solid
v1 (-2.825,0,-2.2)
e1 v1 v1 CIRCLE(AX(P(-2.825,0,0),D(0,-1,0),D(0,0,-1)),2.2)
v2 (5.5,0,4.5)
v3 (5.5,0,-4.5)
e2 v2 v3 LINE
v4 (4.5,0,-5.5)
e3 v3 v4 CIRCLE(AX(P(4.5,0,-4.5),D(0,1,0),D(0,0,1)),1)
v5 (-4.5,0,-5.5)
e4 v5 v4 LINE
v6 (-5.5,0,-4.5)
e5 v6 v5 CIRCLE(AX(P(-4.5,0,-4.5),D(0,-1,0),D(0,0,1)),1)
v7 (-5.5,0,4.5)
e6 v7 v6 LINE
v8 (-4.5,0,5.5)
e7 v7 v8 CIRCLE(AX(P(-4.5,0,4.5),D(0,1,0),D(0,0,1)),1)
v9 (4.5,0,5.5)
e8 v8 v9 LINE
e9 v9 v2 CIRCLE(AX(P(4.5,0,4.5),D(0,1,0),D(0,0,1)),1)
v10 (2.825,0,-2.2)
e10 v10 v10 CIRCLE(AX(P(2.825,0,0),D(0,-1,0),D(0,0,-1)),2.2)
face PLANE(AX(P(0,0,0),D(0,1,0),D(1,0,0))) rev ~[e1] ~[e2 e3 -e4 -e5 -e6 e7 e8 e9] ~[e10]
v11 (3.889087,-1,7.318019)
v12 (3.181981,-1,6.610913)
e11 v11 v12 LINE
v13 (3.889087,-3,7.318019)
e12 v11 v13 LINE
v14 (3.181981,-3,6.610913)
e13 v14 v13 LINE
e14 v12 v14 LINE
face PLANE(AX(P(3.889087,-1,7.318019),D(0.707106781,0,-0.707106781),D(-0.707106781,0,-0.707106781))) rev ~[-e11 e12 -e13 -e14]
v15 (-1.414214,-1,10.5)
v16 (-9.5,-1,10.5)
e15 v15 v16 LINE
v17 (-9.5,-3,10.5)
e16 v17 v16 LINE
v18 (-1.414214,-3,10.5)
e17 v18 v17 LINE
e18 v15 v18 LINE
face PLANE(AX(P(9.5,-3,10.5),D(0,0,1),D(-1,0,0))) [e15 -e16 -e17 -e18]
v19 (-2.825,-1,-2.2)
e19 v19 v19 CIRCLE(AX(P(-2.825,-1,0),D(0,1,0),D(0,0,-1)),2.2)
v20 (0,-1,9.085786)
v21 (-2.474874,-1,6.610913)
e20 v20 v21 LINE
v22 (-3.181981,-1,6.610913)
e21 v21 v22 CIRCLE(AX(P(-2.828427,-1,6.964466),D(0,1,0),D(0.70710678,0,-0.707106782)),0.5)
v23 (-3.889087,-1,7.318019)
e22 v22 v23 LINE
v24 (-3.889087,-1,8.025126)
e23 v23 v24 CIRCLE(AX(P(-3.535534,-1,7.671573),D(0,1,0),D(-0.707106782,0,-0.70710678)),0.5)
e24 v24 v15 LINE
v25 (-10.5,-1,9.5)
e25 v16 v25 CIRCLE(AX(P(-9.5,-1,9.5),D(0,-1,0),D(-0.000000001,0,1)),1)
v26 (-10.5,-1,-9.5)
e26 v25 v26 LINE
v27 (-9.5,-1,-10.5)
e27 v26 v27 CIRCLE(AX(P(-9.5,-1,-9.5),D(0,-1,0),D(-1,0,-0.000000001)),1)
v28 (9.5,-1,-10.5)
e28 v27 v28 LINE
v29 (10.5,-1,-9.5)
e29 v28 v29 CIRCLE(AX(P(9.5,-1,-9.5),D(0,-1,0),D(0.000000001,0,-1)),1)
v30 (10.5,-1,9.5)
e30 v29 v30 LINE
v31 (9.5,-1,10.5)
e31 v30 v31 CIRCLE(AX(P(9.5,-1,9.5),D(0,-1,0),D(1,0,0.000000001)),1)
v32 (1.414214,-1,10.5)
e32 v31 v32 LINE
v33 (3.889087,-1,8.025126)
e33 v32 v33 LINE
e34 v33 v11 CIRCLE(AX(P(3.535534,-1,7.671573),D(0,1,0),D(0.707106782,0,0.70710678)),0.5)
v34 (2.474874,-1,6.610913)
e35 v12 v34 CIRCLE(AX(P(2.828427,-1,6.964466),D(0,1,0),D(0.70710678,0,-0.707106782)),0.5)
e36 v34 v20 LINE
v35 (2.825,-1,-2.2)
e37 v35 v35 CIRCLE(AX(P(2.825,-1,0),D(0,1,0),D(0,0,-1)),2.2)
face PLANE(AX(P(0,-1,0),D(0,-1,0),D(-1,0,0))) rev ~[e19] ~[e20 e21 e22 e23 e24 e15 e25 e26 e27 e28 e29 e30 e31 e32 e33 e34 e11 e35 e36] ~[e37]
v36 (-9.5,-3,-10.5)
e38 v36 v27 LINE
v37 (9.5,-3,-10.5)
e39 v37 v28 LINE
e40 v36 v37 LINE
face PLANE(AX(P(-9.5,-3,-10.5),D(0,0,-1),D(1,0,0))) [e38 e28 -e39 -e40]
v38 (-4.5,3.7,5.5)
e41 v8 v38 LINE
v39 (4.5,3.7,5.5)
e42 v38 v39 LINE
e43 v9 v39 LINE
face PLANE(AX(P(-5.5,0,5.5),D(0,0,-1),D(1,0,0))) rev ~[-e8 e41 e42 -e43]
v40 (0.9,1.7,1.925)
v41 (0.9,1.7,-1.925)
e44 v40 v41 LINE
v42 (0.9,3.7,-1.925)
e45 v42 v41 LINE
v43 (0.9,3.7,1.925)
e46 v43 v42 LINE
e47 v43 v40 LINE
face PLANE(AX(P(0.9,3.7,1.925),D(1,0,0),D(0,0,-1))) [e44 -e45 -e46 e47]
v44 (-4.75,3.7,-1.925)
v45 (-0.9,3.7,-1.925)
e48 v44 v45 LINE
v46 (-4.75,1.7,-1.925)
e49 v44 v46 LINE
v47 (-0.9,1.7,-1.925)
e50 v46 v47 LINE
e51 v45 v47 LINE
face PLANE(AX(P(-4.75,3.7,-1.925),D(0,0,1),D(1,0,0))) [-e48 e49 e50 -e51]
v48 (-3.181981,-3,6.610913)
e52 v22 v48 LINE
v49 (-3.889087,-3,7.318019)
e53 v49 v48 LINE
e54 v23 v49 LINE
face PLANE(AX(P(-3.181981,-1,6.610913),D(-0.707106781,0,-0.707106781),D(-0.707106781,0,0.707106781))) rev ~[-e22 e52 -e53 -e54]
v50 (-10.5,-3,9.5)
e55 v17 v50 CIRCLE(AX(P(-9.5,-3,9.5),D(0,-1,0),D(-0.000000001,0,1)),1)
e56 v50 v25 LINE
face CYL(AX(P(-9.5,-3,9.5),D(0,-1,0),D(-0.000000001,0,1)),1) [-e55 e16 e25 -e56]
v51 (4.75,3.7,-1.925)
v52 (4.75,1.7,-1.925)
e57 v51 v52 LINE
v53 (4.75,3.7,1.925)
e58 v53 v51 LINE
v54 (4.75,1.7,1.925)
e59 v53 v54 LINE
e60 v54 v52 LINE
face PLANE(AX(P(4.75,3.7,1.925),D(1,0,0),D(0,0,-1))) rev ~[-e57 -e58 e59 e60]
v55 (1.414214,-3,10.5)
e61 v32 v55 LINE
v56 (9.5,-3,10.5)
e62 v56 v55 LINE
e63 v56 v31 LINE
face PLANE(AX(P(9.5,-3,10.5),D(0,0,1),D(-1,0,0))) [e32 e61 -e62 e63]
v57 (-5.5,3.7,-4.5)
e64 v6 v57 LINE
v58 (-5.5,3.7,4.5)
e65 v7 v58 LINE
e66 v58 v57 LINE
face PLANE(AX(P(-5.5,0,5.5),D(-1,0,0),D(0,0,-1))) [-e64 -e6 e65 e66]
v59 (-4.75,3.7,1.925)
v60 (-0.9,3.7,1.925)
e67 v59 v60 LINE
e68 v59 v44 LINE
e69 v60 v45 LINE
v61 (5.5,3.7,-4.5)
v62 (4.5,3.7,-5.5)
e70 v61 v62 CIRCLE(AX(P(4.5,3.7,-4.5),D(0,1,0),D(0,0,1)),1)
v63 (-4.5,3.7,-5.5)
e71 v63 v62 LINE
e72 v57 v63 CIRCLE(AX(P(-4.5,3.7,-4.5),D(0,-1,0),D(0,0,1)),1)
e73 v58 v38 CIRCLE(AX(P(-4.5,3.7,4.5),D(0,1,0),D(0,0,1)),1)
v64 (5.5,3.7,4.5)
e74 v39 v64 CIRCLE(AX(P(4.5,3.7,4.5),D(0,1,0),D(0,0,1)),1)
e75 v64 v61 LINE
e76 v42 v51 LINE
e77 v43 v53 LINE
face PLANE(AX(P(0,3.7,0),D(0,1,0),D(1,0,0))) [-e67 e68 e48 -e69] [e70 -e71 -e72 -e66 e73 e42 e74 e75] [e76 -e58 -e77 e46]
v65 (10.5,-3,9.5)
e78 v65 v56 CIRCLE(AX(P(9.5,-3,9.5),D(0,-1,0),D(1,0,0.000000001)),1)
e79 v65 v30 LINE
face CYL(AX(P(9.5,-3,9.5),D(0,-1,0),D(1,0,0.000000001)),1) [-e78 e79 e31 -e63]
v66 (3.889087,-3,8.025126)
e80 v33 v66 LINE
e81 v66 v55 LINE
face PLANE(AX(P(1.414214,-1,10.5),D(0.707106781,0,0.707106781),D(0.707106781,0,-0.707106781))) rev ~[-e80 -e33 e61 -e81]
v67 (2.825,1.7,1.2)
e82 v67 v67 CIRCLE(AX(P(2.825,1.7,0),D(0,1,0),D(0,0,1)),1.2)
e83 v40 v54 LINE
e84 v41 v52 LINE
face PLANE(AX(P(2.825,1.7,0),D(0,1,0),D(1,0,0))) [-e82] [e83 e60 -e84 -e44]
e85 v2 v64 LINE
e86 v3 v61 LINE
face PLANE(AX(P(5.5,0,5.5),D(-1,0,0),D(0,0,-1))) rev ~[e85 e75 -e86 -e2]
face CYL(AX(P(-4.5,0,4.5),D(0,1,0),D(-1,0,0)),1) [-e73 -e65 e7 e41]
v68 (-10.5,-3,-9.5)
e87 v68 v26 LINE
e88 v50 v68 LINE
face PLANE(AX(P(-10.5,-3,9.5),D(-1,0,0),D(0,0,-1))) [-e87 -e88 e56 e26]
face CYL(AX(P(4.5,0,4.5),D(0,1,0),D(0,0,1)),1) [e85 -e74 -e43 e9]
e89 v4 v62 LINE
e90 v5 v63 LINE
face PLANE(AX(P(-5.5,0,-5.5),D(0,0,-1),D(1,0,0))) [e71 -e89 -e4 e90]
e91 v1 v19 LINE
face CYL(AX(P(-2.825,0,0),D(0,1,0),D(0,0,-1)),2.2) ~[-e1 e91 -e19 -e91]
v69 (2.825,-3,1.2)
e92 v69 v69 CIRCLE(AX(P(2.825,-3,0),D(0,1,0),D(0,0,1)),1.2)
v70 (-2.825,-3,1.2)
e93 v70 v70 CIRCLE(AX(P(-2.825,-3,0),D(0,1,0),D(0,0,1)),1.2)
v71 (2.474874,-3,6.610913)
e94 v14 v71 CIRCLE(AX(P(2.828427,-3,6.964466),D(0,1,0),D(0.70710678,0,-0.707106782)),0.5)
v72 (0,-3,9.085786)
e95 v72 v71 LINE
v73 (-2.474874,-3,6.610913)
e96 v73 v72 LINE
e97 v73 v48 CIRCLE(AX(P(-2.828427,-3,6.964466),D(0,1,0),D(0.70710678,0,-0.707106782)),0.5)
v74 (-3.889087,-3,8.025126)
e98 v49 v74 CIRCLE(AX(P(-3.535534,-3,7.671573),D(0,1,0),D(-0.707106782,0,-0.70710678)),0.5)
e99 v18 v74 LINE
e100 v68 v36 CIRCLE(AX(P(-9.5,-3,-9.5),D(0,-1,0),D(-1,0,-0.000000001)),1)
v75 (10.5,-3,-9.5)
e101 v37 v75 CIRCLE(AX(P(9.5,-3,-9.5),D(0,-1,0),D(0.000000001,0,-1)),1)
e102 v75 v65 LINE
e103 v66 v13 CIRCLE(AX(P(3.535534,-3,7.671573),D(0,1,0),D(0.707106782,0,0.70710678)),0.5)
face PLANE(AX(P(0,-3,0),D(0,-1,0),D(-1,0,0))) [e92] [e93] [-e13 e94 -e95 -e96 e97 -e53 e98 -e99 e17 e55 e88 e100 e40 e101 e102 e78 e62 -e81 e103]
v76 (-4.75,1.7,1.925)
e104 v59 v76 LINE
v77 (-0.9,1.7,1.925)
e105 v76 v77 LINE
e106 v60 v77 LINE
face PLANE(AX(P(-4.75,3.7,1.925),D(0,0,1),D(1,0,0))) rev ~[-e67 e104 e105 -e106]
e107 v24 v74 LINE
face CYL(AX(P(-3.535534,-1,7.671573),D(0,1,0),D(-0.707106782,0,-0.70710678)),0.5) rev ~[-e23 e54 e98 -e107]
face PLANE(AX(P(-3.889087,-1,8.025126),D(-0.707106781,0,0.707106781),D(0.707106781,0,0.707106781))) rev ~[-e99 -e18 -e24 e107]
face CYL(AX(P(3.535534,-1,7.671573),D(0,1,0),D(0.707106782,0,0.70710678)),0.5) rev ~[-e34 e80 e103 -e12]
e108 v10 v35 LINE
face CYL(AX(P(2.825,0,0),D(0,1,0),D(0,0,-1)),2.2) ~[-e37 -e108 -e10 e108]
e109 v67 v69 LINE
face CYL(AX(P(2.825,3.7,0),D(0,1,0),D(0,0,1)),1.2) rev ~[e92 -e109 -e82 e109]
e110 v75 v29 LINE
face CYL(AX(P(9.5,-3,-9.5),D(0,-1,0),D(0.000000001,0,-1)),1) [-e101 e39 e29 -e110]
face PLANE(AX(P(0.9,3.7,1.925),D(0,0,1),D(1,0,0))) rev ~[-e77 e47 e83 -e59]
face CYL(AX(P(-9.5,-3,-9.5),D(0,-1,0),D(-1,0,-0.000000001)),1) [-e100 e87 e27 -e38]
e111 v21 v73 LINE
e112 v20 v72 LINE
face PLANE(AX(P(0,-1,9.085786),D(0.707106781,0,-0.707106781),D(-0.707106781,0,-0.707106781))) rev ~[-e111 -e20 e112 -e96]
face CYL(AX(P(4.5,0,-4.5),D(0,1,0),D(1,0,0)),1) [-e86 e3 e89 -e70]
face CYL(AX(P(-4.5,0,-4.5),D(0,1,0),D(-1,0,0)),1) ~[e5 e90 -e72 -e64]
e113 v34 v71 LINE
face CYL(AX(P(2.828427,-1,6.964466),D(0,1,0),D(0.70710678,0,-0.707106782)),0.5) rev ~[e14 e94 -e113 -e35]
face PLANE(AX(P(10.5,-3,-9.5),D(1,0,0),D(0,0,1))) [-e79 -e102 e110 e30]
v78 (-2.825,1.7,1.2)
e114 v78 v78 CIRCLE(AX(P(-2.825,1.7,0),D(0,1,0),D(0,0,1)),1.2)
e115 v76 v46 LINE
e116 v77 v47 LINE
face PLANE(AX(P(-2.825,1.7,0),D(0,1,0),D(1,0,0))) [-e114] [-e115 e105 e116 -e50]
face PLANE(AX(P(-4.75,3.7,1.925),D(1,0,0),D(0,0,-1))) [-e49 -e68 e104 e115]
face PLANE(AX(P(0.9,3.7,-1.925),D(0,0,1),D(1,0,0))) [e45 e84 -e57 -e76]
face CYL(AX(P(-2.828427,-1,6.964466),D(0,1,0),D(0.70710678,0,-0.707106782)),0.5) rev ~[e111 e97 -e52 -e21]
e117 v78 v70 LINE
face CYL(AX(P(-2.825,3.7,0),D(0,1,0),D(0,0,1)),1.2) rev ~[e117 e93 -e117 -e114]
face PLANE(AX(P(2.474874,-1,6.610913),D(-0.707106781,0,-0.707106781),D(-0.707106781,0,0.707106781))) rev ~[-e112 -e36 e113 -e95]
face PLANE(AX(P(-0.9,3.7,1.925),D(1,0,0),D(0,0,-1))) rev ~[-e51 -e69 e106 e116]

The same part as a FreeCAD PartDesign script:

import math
import FreeCAD as App
import Part
import Sketcher

V = App.Vector
Q = App.Units.Quantity


def edges_at(feature, points):
    """Names of the edges that pass closest to the given points."""
    edges = feature.Shape.Edges
    near = lambda p: min(range(len(edges)), key=lambda i: edges[i].distToShape(Part.Vertex(*p))[0])
    return sorted({f"Edge{near(p) + 1}" for p in points})


def add_polygon(sketch, points):
    """Adds a closed chain of lines whose ends are joined by coincident constraints."""
    first, n = sketch.GeometryCount, len(points)
    for a, b in zip(points, points[1:] + points[:1]):
        sketch.addGeometry(Part.LineSegment(App.Vector(*a, 0), App.Vector(*b, 0)), False)
    for i in range(n):
        sketch.addConstraint(Sketcher.Constraint("Coincident", first + i, 2, first + (i + 1) % n, 1))

doc = App.newDocument("Part")
body = doc.addObject("PartDesign::Body", "Body")

# Sketch on XZ plane
sketch1 = doc.addObject("Sketcher::SketchObject", "Sketch")
body.addObject(sketch1)
sketch1.AttachmentSupport = (doc.XZ_Plane, [""])
sketch1.MapMode = "FlatFace"
add_polygon(sketch1, [(-6, -6), (-6, 6), (6, 6), (6, -6)])  # lines 0-3
sketch1.addConstraint([
    Sketcher.Constraint("Vertical", 0),
    Sketcher.Constraint("Horizontal", 1),
    Sketcher.Constraint("Vertical", 2),
    Sketcher.Constraint("Horizontal", 3),
    Sketcher.Constraint("Symmetric", 0, 2, 2, 2, -1, 1),
    Sketcher.Constraint("Equal", 3, 0),
    Sketcher.Constraint("DistanceX", 1, 1, 1, 2, Q("11 mm")),
])
pad1 = doc.addObject("PartDesign::Pad", "Pad")
body.addObject(pad1)
pad1.Profile = sketch1
pad1.Length = 3.7
pad1.Reversed = True
doc.recompute()

fillet = doc.addObject("PartDesign::Fillet", "Fillet")
body.addObject(fillet)
fillet.Base = (pad1, edges_at(pad1, [
    (5.5, 1.85, 5.5),
    (-5.5, 1.85, 5.5),
    (-5.5, 1.85, -5.5),
    (5.5, 1.85, -5.5),
]))
fillet.Radius = 1

# Sketch on XZ plane
sketch2 = doc.addObject("Sketcher::SketchObject", "Sketch001")
body.addObject(sketch2)
sketch2.AttachmentSupport = (doc.XZ_Plane, [""])
sketch2.MapMode = "FlatFace"
sketch2.AttachmentOffset = App.Placement(V(0, 0, -3.7), App.Rotation())
add_polygon(sketch2, [(-4.8, -1.9), (-4.8, 1.9), (-0.9, 1.9), (-0.9, -1.9)])  # lines 0-3
add_polygon(sketch2, [(0.9, -1.9), (0.9, 1.9), (4.8, 1.9), (4.8, -1.9)])  # lines 4-7
sketch2.addConstraint([
    Sketcher.Constraint("Vertical", 0),
    Sketcher.Constraint("Horizontal", 1),
    Sketcher.Constraint("Vertical", 2),
    Sketcher.Constraint("Horizontal", 3),
    Sketcher.Constraint("Vertical", 4),
    Sketcher.Constraint("Horizontal", 5),
    Sketcher.Constraint("Vertical", 6),
    Sketcher.Constraint("Horizontal", 7),
    Sketcher.Constraint("Symmetric", 2, 2, 4, 2, -1, 1),
    Sketcher.Constraint("Symmetric", 0, 2, 6, 2, -1, 1),
    Sketcher.Constraint("Horizontal", 1, 2, 4, 2),
    Sketcher.Constraint("Equal", 7, 0),
    Sketcher.Constraint("DistanceX", 1, 1, 1, 2, Q("3.85 mm")),
    Sketcher.Constraint("DistanceX", 1, 2, -1, 1, Q("0.9 mm")),
])
pocket1 = doc.addObject("PartDesign::Pocket", "Pocket")
body.addObject(pocket1)
pocket1.Profile = sketch2
pocket1.Length = 2
pocket1.Reversed = True

# Sketch on XZ plane
sketch3 = doc.addObject("Sketcher::SketchObject", "Sketch002")
body.addObject(sketch3)
sketch3.AttachmentSupport = (doc.XZ_Plane, [""])
sketch3.MapMode = "FlatFace"
sketch3.addGeometry([
    Part.Circle(V(-2.8, 0, 0), V(0, 0, 1), 2.2),
    Part.Circle(V(2.8, 0, 0), V(0, 0, 1), 2.2),
], False)
sketch3.addConstraint([
    Sketcher.Constraint("Equal", 0, 1),
    Sketcher.Constraint("Symmetric", 0, 3, 1, 3, -1, 1),
    Sketcher.Constraint("PointOnObject", 0, 3, -1),
    Sketcher.Constraint("Diameter", 0, Q("4.4 mm")),
    Sketcher.Constraint("DistanceX", 0, 3, 1, 3, Q("5.65 mm")),
])
pad2 = doc.addObject("PartDesign::Pad", "Pad001")
body.addObject(pad2)
pad2.Profile = sketch3
pad2.Length = 3

# Sketch on XZ plane
sketch4 = doc.addObject("Sketcher::SketchObject", "Sketch003")
body.addObject(sketch4)
sketch4.AttachmentSupport = (doc.XZ_Plane, [""])
sketch4.MapMode = "FlatFace"
sketch4.AttachmentOffset = App.Placement(V(0, 0, 3), App.Rotation())
sketch4.addGeometry([
    Part.LineSegment(V(-9.5, -10.5, 0), V(9.5, -10.5, 0)),  # 0
    Part.ArcOfCircle(Part.Circle(V(9.5, -9.5, 0), V(0, 0, 1), 1), math.radians(-90), math.radians(0)),  # 1
    Part.LineSegment(V(10.5, -9.5, 0), V(10.5, 9.5, 0)),  # 2
    Part.ArcOfCircle(Part.Circle(V(9.5, 9.5, 0), V(0, 0, 1), 1), math.radians(0), math.radians(90)),  # 3
    Part.LineSegment(V(9.5, 10.5, 0), V(-9.5, 10.5, 0)),  # 4
    Part.ArcOfCircle(Part.Circle(V(-9.5, 9.5, 0), V(0, 0, 1), 1), math.radians(90), math.radians(180)),  # 5
    Part.LineSegment(V(-10.5, 9.5, 0), V(-10.5, -9.5, 0)),  # 6
    Part.ArcOfCircle(Part.Circle(V(-9.5, -9.5, 0), V(0, 0, 1), 1), math.radians(-180), math.radians(-90)),  # 7
], False)
sketch4.addConstraint([
    Sketcher.Constraint("Tangent", 0, 2, 1, 1),
    Sketcher.Constraint("Tangent", 1, 2, 2, 1),
    Sketcher.Constraint("Tangent", 2, 2, 3, 1),
    Sketcher.Constraint("Tangent", 3, 2, 4, 1),
    Sketcher.Constraint("Tangent", 4, 2, 5, 1),
    Sketcher.Constraint("Tangent", 5, 2, 6, 1),
    Sketcher.Constraint("Tangent", 6, 2, 7, 1),
    Sketcher.Constraint("Tangent", 7, 2, 0, 1),
    Sketcher.Constraint("Horizontal", 0),
    Sketcher.Constraint("Vertical", 2),
    Sketcher.Constraint("Horizontal", 4),
    Sketcher.Constraint("Vertical", 6),
    Sketcher.Constraint("Equal", 1, 3),
    Sketcher.Constraint("Equal", 3, 5),
    Sketcher.Constraint("Equal", 5, 7),
    Sketcher.Constraint("Symmetric", 1, 3, 5, 3, -1, 1),
    Sketcher.Constraint("Equal", 4, 2),
    Sketcher.Constraint("Radius", 1, Q("1 mm")),
    Sketcher.Constraint("DistanceX", 0, 1, 0, 2, Q("19 mm")),
])
pad3 = doc.addObject("PartDesign::Pad", "Pad002")
body.addObject(pad3)
pad3.Profile = sketch4
pad3.Length = 2
pad3.Reversed = True

# Sketch on XZ plane
sketch5 = doc.addObject("Sketcher::SketchObject", "Sketch004")
body.addObject(sketch5)
sketch5.AttachmentSupport = (doc.XZ_Plane, [""])
sketch5.MapMode = "FlatFace"
sketch5.AttachmentOffset = App.Placement(V(0, 0, -3.7), App.Rotation())
sketch5.addGeometry([
    Part.Circle(V(-2.8, 0, 0), V(0, 0, 1), 1.2),
    Part.Circle(V(2.8, 0, 0), V(0, 0, 1), 1.2),
], False)
sketch5.addConstraint([
    Sketcher.Constraint("Equal", 0, 1),
    Sketcher.Constraint("Symmetric", 0, 3, 1, 3, -1, 1),
    Sketcher.Constraint("PointOnObject", 0, 3, -1),
    Sketcher.Constraint("Diameter", 0, Q("2.4 mm")),
    Sketcher.Constraint("DistanceX", 0, 3, 1, 3, Q("5.65 mm")),
])
pocket2 = doc.addObject("PartDesign::Pocket", "Pocket001")
body.addObject(pocket2)
pocket2.Profile = sketch5
pocket2.Type = "ThroughAll"
pocket2.Reversed = True

# Sketch on XZ plane
sketch6 = doc.addObject("Sketcher::SketchObject", "Sketch005")
body.addObject(sketch6)
sketch6.AttachmentSupport = (doc.XZ_Plane, [""])
sketch6.MapMode = "FlatFace"
sketch6.AttachmentOffset = App.Placement(V(0, 0, 1), App.Rotation())
sketch6.addGeometry([
    Part.LineSegment(V(1.4, 10.5, 0), V(3.9, 8, 0)),  # 0
    Part.ArcOfCircle(Part.Circle(V(3.5, 7.7, 0), V(0, 0, 1), 0.5), math.radians(-45), math.radians(45)),  # 1
    Part.LineSegment(V(3.9, 7.3, 0), V(3.2, 6.6, 0)),  # 2
    Part.ArcOfCircle(Part.Circle(V(2.8, 7, 0), V(0, 0, 1), 0.5), math.radians(-135), math.radians(-45)),  # 3
    Part.LineSegment(V(2.5, 6.6, 0), V(0, 9.1, 0)),  # 4
    Part.LineSegment(V(0, 9.1, 0), V(-2.5, 6.6, 0)),  # 5
    Part.ArcOfCircle(Part.Circle(V(-2.8, 7, 0), V(0, 0, 1), 0.5), math.radians(-135), math.radians(-45)),  # 6
    Part.LineSegment(V(-3.2, 6.6, 0), V(-3.9, 7.3, 0)),  # 7
    Part.ArcOfCircle(Part.Circle(V(-3.5, 7.7, 0), V(0, 0, 1), 0.5), math.radians(135), math.radians(225)),  # 8
    Part.LineSegment(V(-3.9, 8, 0), V(-1.4, 10.5, 0)),  # 9
    Part.LineSegment(V(-1.4, 10.5, 0), V(1.4, 10.5, 0)),  # 10
], False)
sketch6.addConstraint([
    Sketcher.Constraint("Tangent", 0, 2, 1, 2),
    Sketcher.Constraint("Tangent", 1, 1, 2, 1),
    Sketcher.Constraint("Tangent", 2, 2, 3, 2),
    Sketcher.Constraint("Tangent", 3, 1, 4, 1),
    Sketcher.Constraint("Coincident", 4, 2, 5, 1),
    Sketcher.Constraint("Tangent", 5, 2, 6, 2),
    Sketcher.Constraint("Tangent", 6, 1, 7, 1),
    Sketcher.Constraint("Tangent", 7, 2, 8, 2),
    Sketcher.Constraint("Tangent", 8, 1, 9, 1),
    Sketcher.Constraint("Coincident", 9, 2, 10, 1),
    Sketcher.Constraint("Coincident", 10, 2, 0, 1),
    Sketcher.Constraint("Horizontal", 10),
    Sketcher.Constraint("Equal", 1, 3),
    Sketcher.Constraint("Equal", 3, 6),
    Sketcher.Constraint("Equal", 6, 8),
    Sketcher.Constraint("Symmetric", 3, 3, 6, 3, -2),
    Sketcher.Constraint("Symmetric", 1, 3, 8, 3, -2),
    Sketcher.Constraint("PointOnObject", 4, 2, -2),
    Sketcher.Constraint("Perpendicular", 0, 2),
    Sketcher.Constraint("Perpendicular", 2, 4),
    Sketcher.Constraint("Perpendicular", 4, 5),
    Sketcher.Constraint("Perpendicular", 7, 9),
    Sketcher.Constraint("Equal", 0, 4),
    Sketcher.Constraint("Radius", 1, Q("0.5 mm")),
    Sketcher.Constraint("Distance", 2, Q("1 mm")),
    Sketcher.Constraint("Distance", 0, Q("3.5 mm")),
    Sketcher.Constraint("DistanceY", -1, 1, 9, 2, Q("10.5 mm")),
])
pocket3 = doc.addObject("PartDesign::Pocket", "Pocket002")
body.addObject(pocket3)
pocket3.Profile = sketch6
pocket3.Type = "ThroughAll"
pocket3.Reversed = True

doc.recompute()
